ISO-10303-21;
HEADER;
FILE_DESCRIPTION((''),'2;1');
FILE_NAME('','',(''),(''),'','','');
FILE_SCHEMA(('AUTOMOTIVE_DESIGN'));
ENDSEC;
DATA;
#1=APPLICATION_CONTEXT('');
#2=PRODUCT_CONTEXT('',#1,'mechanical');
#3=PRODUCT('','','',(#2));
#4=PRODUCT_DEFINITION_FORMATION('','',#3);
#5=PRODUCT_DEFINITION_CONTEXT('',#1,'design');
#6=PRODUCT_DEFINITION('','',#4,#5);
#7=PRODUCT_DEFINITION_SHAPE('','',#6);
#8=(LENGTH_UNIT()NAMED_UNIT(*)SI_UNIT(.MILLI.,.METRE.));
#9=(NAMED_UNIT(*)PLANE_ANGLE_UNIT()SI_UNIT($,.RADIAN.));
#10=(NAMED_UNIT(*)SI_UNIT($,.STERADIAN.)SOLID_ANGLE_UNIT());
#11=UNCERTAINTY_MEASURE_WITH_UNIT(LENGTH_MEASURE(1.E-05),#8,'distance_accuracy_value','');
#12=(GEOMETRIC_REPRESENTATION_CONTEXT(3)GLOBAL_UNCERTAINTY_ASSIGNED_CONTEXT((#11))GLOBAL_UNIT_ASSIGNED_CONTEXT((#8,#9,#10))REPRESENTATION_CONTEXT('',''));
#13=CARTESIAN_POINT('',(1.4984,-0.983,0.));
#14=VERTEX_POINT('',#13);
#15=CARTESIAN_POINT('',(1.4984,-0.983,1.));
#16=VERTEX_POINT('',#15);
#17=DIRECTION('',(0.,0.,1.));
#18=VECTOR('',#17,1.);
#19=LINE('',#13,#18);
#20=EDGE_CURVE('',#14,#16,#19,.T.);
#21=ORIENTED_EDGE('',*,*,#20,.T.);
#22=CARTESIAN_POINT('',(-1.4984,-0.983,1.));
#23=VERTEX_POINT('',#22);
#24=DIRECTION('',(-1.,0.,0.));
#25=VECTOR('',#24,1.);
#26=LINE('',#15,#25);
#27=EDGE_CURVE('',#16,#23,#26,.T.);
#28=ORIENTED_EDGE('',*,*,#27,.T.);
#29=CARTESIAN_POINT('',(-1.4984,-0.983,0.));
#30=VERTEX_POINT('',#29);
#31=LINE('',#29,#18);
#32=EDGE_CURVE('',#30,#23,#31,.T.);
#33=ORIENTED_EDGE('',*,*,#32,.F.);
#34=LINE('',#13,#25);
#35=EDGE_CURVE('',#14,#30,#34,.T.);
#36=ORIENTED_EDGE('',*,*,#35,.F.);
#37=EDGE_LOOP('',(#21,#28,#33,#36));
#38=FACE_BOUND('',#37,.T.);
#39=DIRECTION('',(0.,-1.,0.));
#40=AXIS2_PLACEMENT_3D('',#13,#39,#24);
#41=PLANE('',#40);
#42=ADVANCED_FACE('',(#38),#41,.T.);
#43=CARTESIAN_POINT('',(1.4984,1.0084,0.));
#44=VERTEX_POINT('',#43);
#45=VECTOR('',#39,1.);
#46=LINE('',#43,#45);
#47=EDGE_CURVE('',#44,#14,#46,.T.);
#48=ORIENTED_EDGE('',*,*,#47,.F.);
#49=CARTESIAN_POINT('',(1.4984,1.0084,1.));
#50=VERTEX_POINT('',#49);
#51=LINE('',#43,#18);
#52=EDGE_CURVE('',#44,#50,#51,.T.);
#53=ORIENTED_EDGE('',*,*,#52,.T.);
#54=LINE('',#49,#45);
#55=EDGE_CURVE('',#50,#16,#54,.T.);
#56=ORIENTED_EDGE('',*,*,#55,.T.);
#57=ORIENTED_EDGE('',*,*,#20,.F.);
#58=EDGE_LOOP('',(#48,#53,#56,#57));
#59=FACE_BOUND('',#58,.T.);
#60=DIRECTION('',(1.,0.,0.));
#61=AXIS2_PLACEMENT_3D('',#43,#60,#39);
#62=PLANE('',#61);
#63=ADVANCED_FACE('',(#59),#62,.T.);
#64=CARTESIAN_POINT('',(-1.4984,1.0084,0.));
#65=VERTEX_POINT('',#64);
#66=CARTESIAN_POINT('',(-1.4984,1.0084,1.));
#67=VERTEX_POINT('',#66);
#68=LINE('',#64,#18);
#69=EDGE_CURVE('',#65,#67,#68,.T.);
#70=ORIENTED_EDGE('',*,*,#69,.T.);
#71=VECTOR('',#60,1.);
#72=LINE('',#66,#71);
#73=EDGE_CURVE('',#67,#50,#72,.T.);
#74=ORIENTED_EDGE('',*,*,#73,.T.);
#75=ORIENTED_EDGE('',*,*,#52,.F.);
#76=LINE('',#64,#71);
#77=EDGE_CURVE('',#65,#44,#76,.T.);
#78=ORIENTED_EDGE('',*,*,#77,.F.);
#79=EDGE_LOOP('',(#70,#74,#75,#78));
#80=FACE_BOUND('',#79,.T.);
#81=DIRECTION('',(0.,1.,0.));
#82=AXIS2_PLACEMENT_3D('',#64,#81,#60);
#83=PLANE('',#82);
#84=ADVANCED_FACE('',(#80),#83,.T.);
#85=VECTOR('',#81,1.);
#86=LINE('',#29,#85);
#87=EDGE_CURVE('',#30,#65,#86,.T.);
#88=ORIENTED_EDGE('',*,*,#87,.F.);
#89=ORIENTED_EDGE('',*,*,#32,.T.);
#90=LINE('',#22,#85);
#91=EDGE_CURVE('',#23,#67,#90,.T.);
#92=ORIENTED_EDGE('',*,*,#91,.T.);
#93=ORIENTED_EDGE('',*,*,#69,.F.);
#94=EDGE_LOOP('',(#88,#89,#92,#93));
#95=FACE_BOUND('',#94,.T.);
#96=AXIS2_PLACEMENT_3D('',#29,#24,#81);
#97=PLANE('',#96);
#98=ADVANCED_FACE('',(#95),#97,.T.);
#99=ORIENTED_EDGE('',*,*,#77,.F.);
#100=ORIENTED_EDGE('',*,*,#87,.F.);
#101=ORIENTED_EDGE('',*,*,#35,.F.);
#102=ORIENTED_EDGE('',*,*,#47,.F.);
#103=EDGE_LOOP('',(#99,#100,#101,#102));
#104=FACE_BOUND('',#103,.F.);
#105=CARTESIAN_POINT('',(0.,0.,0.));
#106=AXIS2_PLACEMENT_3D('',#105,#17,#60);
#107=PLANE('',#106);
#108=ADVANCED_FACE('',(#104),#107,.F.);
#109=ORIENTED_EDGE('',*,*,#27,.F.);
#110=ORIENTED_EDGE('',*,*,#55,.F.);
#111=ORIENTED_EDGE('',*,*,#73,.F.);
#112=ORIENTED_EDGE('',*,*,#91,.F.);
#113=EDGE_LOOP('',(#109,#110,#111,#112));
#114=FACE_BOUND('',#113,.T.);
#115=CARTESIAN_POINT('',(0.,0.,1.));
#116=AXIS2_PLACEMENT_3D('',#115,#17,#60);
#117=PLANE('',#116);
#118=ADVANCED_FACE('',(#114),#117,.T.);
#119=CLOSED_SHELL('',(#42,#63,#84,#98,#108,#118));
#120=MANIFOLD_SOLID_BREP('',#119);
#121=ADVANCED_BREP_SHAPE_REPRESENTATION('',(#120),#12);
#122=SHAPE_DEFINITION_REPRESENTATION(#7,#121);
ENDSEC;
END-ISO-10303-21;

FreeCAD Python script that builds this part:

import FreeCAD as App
import Part
import Sketcher
from FreeCAD import Vector
Q = App.Units.Quantity

doc = App.newDocument("Part")
body = doc.addObject("PartDesign::Body", "Body")

# Sketch on XY plane
sketch1 = body.newObject("Sketcher::SketchObject", "Sketch")
sketch1.AttachmentSupport = (doc.getObject("XY_Plane"), [""])
sketch1.MapMode = "FlatFace"
sketch1.addGeometry(Part.LineSegment(Vector(1.4984, 1.0084, 0), Vector(-1.4984, 1.0084, 0)), False)
sketch1.addGeometry(Part.LineSegment(Vector(-1.4984, 1.0084, 0), Vector(-1.4984, -0.983, 0)), False)
sketch1.addGeometry(Part.LineSegment(Vector(-1.4984, -0.983, 0), Vector(1.4984, -0.983, 0)), False)
sketch1.addGeometry(Part.LineSegment(Vector(1.4984, -0.983, 0), Vector(1.4984, 1.0084, 0)), False)
sketch1.addConstraint(Sketcher.Constraint("Coincident", 0, 2, 1, 1))
sketch1.addConstraint(Sketcher.Constraint("Coincident", 1, 2, 2, 1))
sketch1.addConstraint(Sketcher.Constraint("Coincident", 2, 2, 3, 1))
sketch1.addConstraint(Sketcher.Constraint("Coincident", 3, 2, 0, 1))
sketch1.addConstraint(Sketcher.Constraint("Horizontal", 0))
sketch1.addConstraint(Sketcher.Constraint("Vertical", 1))
sketch1.addConstraint(Sketcher.Constraint("Horizontal", 2))
sketch1.addConstraint(Sketcher.Constraint("Vertical", 3))
sketch1.addConstraint(Sketcher.Constraint("DistanceX", 0, 2, 0, 1, Q("2.9968 mm")))
sketch1.addConstraint(Sketcher.Constraint("DistanceY", 1, 2, 1, 1, Q("1.9914 mm")))
sketch1.addConstraint(Sketcher.Constraint("DistanceY", 1, 2, -1, 1, Q("0.983 mm")))
sketch1.addConstraint(Sketcher.Constraint("DistanceX", 0, 2, -1, 1, Q("1.4984 mm")))
pad1 = body.newObject("PartDesign::Pad", "Pad")
pad1.Profile = sketch1
pad1.Length = 1

doc.recompute()
